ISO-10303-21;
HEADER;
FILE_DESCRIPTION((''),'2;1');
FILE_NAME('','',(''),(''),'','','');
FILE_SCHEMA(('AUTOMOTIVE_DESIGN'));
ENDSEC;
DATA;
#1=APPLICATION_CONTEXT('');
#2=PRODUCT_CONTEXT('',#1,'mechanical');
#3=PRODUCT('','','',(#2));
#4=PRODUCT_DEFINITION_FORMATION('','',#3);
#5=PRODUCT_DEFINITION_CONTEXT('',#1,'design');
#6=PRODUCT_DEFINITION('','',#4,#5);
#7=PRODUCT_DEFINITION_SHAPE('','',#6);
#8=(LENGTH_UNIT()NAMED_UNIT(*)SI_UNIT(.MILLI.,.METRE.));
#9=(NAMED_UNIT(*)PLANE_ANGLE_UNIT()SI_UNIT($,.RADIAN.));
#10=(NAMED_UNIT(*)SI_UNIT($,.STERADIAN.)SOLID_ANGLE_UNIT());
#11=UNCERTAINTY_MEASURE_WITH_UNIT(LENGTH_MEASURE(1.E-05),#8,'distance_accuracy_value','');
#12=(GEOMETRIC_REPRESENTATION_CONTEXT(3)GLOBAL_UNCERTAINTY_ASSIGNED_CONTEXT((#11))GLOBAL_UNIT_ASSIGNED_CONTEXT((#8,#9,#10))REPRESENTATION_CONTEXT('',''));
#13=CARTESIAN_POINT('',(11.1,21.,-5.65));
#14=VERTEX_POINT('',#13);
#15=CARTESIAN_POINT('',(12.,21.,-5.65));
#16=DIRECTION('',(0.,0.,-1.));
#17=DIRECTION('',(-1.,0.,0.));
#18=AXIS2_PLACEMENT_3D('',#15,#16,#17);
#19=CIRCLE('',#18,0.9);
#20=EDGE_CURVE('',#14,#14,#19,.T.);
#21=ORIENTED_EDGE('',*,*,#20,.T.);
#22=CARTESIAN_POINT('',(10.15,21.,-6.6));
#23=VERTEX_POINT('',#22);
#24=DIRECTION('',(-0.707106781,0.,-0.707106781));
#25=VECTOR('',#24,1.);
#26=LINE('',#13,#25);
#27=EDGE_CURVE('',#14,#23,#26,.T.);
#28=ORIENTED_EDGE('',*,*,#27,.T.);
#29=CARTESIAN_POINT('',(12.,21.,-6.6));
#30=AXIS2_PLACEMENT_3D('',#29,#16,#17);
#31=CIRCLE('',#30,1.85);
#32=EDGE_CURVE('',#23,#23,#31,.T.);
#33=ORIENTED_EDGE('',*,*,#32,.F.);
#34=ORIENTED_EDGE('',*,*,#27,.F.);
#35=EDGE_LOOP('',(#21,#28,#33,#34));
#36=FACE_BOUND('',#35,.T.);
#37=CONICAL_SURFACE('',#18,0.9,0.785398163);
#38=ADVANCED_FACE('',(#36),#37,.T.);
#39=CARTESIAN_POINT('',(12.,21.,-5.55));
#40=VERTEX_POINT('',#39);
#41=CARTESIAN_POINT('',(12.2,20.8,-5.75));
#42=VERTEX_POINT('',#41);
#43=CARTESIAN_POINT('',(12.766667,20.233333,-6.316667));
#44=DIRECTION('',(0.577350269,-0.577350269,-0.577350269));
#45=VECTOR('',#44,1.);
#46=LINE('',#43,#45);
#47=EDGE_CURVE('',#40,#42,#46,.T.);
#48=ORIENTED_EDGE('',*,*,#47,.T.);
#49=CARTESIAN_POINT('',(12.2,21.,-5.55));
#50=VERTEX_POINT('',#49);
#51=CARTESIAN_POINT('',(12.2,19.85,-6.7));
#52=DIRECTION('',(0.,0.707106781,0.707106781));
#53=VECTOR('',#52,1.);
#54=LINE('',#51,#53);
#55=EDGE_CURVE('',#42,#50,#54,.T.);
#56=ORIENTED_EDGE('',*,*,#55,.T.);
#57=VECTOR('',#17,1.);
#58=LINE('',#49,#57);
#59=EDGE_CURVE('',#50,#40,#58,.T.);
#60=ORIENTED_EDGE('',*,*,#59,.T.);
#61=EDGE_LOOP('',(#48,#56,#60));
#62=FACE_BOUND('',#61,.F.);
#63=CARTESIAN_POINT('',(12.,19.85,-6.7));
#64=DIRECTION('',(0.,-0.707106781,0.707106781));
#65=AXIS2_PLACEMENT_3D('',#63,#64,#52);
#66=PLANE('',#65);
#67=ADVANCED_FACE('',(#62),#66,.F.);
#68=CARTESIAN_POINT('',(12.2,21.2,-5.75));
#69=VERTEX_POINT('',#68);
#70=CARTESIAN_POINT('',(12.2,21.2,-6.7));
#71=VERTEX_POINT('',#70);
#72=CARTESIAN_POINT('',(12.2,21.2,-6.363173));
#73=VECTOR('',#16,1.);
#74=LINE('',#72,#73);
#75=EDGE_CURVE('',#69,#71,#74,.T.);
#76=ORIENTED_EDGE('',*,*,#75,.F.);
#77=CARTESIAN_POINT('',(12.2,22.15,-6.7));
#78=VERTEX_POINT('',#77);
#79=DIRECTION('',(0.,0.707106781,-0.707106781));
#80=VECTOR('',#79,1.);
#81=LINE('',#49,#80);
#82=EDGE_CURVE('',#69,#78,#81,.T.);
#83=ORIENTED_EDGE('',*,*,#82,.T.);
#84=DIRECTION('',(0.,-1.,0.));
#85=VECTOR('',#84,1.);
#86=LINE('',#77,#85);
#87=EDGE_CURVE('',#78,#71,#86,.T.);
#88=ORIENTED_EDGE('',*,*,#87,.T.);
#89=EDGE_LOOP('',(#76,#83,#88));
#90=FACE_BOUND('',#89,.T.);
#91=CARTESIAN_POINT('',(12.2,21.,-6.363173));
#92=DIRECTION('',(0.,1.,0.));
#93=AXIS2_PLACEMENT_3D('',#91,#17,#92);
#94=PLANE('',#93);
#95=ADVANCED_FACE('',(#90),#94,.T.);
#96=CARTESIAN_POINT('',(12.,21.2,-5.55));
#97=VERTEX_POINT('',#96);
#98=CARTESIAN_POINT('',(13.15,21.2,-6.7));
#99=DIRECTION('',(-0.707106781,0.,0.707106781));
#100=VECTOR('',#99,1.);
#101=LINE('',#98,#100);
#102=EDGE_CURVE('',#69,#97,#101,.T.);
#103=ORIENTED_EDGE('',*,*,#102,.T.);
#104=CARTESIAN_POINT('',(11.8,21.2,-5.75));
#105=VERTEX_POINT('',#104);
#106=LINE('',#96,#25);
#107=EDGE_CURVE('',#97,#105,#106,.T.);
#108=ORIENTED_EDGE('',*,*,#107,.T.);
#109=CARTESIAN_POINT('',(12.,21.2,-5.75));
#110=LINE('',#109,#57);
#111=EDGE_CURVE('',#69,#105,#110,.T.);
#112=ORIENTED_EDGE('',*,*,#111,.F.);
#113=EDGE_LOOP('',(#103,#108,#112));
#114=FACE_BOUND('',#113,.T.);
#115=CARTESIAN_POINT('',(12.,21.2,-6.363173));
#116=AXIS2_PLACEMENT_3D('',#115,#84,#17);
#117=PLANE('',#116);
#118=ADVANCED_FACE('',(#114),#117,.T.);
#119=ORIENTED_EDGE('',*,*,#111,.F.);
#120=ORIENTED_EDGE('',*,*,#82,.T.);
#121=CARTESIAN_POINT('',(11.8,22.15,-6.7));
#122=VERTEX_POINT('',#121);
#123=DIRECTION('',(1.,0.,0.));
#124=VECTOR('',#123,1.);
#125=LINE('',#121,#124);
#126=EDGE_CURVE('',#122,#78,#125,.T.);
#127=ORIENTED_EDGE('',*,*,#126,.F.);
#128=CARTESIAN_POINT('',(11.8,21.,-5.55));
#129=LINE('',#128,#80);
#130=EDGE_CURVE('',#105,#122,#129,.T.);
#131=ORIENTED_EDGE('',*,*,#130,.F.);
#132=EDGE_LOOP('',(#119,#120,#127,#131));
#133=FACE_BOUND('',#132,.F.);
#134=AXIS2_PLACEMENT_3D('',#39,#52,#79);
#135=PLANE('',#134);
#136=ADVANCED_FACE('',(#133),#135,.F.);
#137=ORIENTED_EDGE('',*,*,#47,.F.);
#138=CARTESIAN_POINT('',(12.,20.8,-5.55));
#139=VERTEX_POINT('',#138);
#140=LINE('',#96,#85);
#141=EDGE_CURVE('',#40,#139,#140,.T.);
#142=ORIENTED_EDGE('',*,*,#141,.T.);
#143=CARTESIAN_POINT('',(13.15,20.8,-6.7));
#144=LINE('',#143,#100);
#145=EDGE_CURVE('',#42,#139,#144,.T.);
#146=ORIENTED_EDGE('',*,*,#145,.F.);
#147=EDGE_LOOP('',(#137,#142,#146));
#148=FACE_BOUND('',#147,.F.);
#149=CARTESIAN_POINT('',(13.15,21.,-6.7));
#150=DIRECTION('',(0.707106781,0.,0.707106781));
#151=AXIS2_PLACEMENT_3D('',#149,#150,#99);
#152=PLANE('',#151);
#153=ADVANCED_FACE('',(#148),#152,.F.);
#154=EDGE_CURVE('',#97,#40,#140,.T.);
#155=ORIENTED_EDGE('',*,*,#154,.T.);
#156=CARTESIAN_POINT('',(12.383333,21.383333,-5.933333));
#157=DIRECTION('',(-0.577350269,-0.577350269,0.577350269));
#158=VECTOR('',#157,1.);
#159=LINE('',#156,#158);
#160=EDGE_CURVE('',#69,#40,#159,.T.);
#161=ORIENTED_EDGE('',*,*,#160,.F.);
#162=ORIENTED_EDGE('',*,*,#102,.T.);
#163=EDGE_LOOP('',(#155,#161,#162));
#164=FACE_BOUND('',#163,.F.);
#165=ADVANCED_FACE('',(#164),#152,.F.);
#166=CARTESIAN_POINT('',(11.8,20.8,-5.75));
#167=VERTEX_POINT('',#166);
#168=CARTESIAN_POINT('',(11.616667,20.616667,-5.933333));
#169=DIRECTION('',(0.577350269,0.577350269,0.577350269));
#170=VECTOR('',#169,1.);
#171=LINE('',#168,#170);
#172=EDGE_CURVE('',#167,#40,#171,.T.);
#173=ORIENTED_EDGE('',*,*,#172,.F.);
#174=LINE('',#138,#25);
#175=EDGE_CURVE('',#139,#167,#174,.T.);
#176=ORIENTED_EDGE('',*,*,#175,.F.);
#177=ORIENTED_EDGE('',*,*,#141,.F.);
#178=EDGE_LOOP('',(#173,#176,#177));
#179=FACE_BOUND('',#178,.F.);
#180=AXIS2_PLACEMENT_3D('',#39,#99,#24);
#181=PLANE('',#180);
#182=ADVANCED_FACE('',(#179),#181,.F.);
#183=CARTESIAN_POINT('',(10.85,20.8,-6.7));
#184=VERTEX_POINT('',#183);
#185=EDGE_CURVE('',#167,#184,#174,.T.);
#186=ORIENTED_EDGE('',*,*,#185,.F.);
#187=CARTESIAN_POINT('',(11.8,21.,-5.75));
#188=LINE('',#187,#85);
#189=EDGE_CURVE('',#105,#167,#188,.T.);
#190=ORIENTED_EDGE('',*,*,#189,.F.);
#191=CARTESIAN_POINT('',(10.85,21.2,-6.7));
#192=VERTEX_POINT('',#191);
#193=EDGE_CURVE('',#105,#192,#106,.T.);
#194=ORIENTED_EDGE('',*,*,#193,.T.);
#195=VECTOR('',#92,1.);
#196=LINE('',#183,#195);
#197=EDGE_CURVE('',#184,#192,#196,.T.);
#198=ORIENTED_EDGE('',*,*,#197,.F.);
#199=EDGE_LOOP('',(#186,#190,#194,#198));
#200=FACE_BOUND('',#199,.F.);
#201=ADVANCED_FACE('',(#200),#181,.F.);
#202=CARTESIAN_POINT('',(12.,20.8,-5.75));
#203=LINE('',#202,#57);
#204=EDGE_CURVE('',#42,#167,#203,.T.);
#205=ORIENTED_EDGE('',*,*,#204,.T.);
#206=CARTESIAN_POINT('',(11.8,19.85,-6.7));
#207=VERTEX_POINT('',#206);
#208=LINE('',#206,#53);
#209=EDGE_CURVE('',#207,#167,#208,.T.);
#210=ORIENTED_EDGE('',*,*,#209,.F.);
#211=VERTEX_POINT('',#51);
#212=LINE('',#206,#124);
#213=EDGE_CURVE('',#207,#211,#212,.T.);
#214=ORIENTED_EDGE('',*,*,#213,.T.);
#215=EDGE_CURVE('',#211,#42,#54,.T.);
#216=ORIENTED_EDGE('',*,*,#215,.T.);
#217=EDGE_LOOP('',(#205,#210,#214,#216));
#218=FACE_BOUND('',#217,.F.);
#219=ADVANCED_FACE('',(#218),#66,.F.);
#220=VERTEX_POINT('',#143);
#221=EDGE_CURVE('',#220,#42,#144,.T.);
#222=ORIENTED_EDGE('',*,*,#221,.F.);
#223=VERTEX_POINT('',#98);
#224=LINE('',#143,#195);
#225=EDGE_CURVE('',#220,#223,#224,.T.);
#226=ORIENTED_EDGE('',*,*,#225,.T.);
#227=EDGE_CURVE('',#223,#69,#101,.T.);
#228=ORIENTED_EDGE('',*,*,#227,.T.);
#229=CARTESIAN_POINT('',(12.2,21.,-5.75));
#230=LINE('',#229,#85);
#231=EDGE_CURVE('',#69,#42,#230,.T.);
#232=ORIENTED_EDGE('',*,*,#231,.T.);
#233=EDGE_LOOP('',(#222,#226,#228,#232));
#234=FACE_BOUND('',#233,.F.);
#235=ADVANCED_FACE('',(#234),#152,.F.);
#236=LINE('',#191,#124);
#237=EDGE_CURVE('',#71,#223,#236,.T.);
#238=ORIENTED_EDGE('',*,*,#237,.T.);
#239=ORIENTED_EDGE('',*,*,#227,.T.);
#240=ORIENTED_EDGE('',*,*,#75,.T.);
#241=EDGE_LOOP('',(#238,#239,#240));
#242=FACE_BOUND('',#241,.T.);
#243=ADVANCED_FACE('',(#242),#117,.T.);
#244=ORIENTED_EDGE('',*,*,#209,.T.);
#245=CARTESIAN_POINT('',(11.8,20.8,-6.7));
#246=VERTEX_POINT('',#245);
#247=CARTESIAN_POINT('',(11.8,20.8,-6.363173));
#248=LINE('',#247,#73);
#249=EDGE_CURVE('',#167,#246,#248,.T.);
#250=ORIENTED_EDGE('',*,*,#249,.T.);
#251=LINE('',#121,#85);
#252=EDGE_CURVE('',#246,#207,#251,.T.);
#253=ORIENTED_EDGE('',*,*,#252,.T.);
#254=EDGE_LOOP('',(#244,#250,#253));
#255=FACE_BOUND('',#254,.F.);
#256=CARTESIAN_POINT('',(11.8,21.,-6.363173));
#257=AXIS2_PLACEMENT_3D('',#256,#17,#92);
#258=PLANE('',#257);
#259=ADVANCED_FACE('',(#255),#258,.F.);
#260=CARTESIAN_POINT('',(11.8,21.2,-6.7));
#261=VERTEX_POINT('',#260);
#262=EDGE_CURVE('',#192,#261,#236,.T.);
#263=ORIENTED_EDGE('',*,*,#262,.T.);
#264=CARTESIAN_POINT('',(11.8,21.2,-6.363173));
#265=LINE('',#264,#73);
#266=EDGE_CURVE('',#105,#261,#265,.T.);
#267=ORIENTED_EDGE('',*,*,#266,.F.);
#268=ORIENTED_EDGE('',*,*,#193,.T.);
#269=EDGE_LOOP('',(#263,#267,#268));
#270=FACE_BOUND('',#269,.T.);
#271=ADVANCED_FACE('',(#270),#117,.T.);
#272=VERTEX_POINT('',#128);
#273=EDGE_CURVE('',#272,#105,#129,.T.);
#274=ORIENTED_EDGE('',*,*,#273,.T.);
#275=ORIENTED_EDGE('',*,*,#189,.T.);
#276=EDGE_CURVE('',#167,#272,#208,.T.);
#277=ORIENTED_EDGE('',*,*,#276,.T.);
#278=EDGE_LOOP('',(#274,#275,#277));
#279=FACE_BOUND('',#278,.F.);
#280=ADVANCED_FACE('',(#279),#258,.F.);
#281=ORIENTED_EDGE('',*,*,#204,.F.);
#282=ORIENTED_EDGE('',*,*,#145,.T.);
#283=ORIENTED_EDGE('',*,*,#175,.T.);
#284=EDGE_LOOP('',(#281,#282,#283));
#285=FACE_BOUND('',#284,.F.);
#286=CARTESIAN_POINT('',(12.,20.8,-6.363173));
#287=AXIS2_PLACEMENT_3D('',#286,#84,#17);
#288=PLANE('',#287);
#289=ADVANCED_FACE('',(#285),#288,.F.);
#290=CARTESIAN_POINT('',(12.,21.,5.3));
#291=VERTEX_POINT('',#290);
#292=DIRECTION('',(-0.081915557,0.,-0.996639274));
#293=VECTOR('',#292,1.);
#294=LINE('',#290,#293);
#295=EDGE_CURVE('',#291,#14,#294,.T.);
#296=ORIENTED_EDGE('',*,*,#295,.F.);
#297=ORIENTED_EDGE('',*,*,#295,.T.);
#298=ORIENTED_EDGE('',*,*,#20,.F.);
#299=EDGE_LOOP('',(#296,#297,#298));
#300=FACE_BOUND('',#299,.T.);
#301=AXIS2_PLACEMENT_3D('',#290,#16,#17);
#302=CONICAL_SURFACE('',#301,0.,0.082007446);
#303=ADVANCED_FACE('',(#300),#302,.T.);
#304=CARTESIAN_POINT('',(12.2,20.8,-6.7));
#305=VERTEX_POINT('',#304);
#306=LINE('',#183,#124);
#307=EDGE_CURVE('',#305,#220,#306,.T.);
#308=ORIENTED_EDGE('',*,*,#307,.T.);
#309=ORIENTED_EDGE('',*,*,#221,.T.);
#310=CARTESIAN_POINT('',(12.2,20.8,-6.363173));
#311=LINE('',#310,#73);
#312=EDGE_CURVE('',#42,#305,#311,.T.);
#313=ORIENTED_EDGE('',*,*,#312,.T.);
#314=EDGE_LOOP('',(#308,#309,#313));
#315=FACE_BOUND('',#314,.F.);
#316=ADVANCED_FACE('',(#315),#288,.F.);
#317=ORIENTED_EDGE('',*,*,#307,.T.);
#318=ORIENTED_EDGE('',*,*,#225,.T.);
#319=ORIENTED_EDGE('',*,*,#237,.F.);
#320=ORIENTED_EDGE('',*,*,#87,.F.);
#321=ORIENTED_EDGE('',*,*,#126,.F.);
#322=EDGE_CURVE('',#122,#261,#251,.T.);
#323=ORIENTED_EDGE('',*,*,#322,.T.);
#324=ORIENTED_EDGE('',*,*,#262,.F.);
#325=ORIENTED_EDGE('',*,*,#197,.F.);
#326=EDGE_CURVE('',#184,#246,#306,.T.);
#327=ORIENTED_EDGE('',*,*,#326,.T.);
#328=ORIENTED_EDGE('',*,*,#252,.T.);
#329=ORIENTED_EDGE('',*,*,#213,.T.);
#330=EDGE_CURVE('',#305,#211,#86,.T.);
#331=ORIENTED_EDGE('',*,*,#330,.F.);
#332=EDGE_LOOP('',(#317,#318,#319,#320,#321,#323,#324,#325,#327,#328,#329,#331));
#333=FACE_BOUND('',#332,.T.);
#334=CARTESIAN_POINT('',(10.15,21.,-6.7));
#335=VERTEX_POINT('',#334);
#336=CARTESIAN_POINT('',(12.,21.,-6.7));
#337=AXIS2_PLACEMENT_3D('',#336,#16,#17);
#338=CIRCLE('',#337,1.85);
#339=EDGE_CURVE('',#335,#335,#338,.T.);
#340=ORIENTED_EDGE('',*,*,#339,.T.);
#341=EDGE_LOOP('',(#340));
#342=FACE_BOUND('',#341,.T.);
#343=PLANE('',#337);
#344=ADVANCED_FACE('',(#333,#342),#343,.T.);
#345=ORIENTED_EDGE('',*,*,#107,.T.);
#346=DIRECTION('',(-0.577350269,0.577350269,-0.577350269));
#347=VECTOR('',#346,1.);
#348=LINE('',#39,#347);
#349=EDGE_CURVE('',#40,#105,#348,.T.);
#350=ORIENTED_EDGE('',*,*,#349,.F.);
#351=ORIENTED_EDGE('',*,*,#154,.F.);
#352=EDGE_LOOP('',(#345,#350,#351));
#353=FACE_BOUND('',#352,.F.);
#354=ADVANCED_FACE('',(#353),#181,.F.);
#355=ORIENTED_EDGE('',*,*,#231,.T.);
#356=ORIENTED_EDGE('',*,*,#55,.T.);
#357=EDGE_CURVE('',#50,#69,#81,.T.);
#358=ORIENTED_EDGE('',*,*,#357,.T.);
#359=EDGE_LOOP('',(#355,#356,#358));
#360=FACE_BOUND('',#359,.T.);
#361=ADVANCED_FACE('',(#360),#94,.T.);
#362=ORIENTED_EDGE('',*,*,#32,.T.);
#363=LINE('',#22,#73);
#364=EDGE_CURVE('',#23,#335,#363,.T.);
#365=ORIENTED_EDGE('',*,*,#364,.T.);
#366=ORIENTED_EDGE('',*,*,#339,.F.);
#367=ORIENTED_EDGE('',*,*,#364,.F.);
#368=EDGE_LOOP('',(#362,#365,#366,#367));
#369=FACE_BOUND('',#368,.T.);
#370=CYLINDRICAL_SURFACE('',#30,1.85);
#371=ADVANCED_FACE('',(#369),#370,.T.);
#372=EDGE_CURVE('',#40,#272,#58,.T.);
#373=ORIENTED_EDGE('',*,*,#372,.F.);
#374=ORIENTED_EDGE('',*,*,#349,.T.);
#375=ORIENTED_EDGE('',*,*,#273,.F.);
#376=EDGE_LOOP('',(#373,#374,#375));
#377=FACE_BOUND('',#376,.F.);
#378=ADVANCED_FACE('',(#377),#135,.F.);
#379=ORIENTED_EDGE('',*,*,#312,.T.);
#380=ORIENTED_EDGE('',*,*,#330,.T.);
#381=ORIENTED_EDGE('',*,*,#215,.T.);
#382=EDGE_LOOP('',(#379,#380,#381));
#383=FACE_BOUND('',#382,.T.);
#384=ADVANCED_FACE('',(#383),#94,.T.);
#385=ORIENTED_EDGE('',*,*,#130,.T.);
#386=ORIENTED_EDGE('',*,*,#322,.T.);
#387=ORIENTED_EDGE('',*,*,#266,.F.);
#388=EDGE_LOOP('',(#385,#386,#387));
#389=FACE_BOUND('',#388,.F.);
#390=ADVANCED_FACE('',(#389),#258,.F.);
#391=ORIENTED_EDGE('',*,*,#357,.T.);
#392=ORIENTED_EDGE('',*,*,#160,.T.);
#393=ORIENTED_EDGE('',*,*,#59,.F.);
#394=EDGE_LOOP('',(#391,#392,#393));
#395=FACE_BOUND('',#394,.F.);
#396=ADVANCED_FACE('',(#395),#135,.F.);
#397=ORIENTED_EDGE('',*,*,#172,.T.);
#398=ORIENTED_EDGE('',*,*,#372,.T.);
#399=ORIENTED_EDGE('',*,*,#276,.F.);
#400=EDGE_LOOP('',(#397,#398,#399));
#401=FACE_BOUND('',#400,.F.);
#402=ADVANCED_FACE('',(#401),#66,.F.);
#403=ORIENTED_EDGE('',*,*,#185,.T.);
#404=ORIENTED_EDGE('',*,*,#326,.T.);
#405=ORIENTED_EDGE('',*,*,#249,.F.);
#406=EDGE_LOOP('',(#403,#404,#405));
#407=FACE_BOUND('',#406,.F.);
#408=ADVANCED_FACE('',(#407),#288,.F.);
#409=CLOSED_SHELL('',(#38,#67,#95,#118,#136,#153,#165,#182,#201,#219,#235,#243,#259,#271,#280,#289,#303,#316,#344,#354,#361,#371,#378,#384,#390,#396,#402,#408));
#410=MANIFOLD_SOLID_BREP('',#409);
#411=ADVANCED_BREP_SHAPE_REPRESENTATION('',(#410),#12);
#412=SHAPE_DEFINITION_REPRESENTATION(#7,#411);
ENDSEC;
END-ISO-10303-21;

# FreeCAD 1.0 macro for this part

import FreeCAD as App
import Part
import Sketcher
Q = App.Units.Quantity

doc = App.newDocument("Part")
body = doc.addObject("PartDesign::Body", "Body")

# Sketch on XZ plane
sketch1 = doc.addObject("Sketcher::SketchObject", "Sketch")
body.addObject(sketch1)
sketch1.AttachmentSupport = (doc.XZ_Plane, [""])
sketch1.MapMode = "FlatFace"
sketch1.addGeometry(Part.LineSegment(App.Vector(0, 0, 0), App.Vector(0, -12, 0)), False)
sketch1.addGeometry(Part.LineSegment(App.Vector(0, -12, 0), App.Vector(0.9, -1.05, 0)), False)
sketch1.addGeometry(Part.LineSegment(App.Vector(0.9, -1.05, 0), App.Vector(1.85, -0.1, 0)), False)
sketch1.addGeometry(Part.LineSegment(App.Vector(1.85, -0.1, 0), App.Vector(1.85, 0, 0)), False)
sketch1.addGeometry(Part.LineSegment(App.Vector(1.85, 0, 0), App.Vector(0, 0, 0)), False)
sketch1.addConstraint(Sketcher.Constraint("Coincident", 0, 2, 1, 1))
sketch1.addConstraint(Sketcher.Constraint("Coincident", 1, 2, 2, 1))
sketch1.addConstraint(Sketcher.Constraint("Coincident", 2, 2, 3, 1))
sketch1.addConstraint(Sketcher.Constraint("Coincident", 3, 2, 4, 1))
sketch1.addConstraint(Sketcher.Constraint("Coincident", 4, 2, 0, 1))
sketch1.addConstraint(Sketcher.Constraint("Vertical", 0))
sketch1.addConstraint(Sketcher.Constraint("Vertical", 3))
sketch1.addConstraint(Sketcher.Constraint("Horizontal", 4))
sketch1.addConstraint(Sketcher.Constraint("Coincident", 4, 2, -1, 1))
sketch1.addConstraint(Sketcher.Constraint("DistanceY", 0, 2, 0, 1, 12.0))
sketch1.addConstraint(Sketcher.Constraint("Angle", 2, Q("45 deg")))
sketch1.addConstraint(Sketcher.Constraint("DistanceY", 3, 1, 3, 2, 0.1))
sketch1.addConstraint(Sketcher.Constraint("DistanceX", 4, 2, 4, 1, 1.85))
sketch1.addConstraint(Sketcher.Constraint("DistanceX", -1, 1, 1, 2, 0.9))
revolution = doc.addObject("PartDesign::Revolution", "Revolution")
body.addObject(revolution)
revolution.Profile = sketch1
revolution.ReferenceAxis = (sketch1, ["V_Axis"])
revolution.Angle = 360

# Sketch on XZ plane
sketch2 = doc.addObject("Sketcher::SketchObject", "Sketch001")
body.addObject(sketch2)
sketch2.AttachmentSupport = (doc.XZ_Plane, [""])
sketch2.MapMode = "FlatFace"
sketch2.addGeometry(Part.LineSegment(App.Vector(-1.1, 0, 0), App.Vector(0, -1.1, 0)), False)
sketch2.addGeometry(Part.LineSegment(App.Vector(0, -1.1, 0), App.Vector(1.1, 0, 0)), False)
sketch2.addGeometry(Part.LineSegment(App.Vector(1.1, 0, 0), App.Vector(-1.1, 0, 0)), False)
sketch2.addConstraint(Sketcher.Constraint("Coincident", 0, 2, 1, 1))
sketch2.addConstraint(Sketcher.Constraint("Coincident", 1, 2, 2, 1))
sketch2.addConstraint(Sketcher.Constraint("Coincident", 2, 2, 0, 1))
sketch2.addConstraint(Sketcher.Constraint("Horizontal", 2))
sketch2.addConstraint(Sketcher.Constraint("Symmetric", 1, 2, 2, 2, -1, 1))
sketch2.addConstraint(Sketcher.Constraint("PointOnObject", 0, 2, -2))
sketch2.addConstraint(Sketcher.Constraint("Perpendicular", 0, 1))
sketch2.addConstraint(Sketcher.Constraint("DistanceX", 2, 2, 2, 1, 2.3))
pocket1 = doc.addObject("PartDesign::Pocket", "Pocket")
body.addObject(pocket1)
pocket1.Profile = sketch2
pocket1.Length = 0.4
pocket1.Midplane = True
doc.recompute()

polarpattern = doc.addObject("PartDesign::PolarPattern", "PolarPattern")
body.addObject(polarpattern)
polarpattern.Originals = [pocket1]
polarpattern.Axis = (doc.Z_Axis, [""])
polarpattern.Angle = 90
polarpattern.Occurrences = 2
body.Tip = polarpattern
body2 = doc.addObject("PartDesign::Body", "Body001")
doc.recompute()

body.Placement = App.Placement(App.Vector(12, 21, -6.7), App.Rotation(App.Vector(0, 1, 0), 180))
boolean = doc.addObject("PartDesign::Boolean", "Boolean")
body2.addObject(boolean)
boolean.Type = "Fuse"
boolean.addObjects([body])

doc.recompute()
